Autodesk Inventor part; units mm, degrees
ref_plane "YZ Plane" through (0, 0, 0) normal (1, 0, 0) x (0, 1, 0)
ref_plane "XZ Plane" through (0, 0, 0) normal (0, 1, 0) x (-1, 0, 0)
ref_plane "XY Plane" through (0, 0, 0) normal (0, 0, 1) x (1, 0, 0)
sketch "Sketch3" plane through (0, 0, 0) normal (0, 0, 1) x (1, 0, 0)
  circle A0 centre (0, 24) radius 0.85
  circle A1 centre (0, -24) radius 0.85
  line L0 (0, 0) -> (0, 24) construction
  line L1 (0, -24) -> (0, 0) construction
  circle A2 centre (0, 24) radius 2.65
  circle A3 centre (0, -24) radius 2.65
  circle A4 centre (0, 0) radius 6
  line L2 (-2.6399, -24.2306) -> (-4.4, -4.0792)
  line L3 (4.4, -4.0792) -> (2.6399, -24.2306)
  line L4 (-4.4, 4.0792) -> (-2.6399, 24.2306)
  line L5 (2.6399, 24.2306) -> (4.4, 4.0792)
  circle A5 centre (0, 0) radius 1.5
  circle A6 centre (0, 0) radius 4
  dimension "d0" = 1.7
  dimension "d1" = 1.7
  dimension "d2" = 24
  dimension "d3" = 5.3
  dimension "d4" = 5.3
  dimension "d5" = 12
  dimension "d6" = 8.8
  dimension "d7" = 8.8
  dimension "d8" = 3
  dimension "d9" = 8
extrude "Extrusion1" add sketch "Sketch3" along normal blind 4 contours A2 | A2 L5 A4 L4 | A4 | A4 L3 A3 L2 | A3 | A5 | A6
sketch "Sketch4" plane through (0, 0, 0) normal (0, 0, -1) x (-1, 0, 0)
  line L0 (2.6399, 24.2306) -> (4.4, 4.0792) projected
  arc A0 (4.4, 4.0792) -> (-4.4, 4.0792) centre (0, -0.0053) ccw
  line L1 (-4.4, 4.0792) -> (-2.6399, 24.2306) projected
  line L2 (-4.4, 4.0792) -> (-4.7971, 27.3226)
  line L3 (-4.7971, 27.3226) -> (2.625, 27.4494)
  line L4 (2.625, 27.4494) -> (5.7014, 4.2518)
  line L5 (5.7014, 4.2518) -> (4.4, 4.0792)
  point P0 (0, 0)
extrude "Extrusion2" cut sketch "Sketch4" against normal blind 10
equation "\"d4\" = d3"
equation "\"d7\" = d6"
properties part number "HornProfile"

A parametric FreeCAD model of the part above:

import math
import FreeCAD as App
import Part
import Sketcher

doc = App.newDocument("Part")
body = doc.addObject("PartDesign::Body", "Body")

# Sketch on XY plane
sketch1 = doc.addObject("Sketcher::SketchObject", "Sketch")
body.addObject(sketch1)
sketch1.AttachmentSupport = (doc.XY_Plane, [""])
sketch1.MapMode = "FlatFace"
sketch1.addGeometry(Part.ArcOfCircle(Part.Circle(App.Vector(0, 24, 0), App.Vector(0, 0, 1), 2.6), math.radians(5), math.radians(175)), False)
sketch1.addGeometry(Part.LineSegment(App.Vector(-2.6, 24.2, 0), App.Vector(-4.4, 4.1, 0)), False)
sketch1.addGeometry(Part.ArcOfCircle(Part.Circle(App.Vector(0, 0, 0), App.Vector(0, 0, 1), 6), math.radians(137), math.radians(223)), False)
sketch1.addGeometry(Part.LineSegment(App.Vector(-4.4, -4.1, 0), App.Vector(-2.6, -24.2, 0)), False)
sketch1.addGeometry(Part.ArcOfCircle(Part.Circle(App.Vector(0, -24, 0), App.Vector(0, 0, 1), 2.6), math.radians(-175), math.radians(-5)), False)
sketch1.addGeometry(Part.LineSegment(App.Vector(2.6, -24.2, 0), App.Vector(4.4, -4.1, 0)), False)
sketch1.addGeometry(Part.ArcOfCircle(Part.Circle(App.Vector(0, 0, 0), App.Vector(0, 0, 1), 6), math.radians(-43), math.radians(43)), False)
sketch1.addGeometry(Part.LineSegment(App.Vector(4.4, 4.1, 0), App.Vector(2.6, 24.2, 0)), False)
sketch1.addGeometry(Part.Circle(App.Vector(0, 24, 0), App.Vector(0, 0, 1), 0.8), False)
sketch1.addGeometry(Part.Circle(App.Vector(0, -24, 0), App.Vector(0, 0, 1), 0.8), False)
sketch1.addConstraint(Sketcher.Constraint("Tangent", 0, 2, 1, 1))
sketch1.addConstraint(Sketcher.Constraint("Coincident", 1, 2, 2, 1))
sketch1.addConstraint(Sketcher.Constraint("Coincident", 2, 2, 3, 1))
sketch1.addConstraint(Sketcher.Constraint("Tangent", 3, 2, 4, 1))
sketch1.addConstraint(Sketcher.Constraint("Tangent", 4, 2, 5, 1))
sketch1.addConstraint(Sketcher.Constraint("Coincident", 5, 2, 6, 1))
sketch1.addConstraint(Sketcher.Constraint("Coincident", 6, 2, 7, 1))
sketch1.addConstraint(Sketcher.Constraint("Tangent", 7, 2, 0, 1))
sketch1.addConstraint(Sketcher.Constraint("Coincident", 2, 3, -1, 1))
sketch1.addConstraint(Sketcher.Constraint("Coincident", 6, 3, -1, 1))
sketch1.addConstraint(Sketcher.Constraint("Coincident", 8, 3, 0, 3))
sketch1.addConstraint(Sketcher.Constraint("Coincident", 9, 3, 4, 3))
sketch1.addConstraint(Sketcher.Constraint("Equal", 0, 4))
sketch1.addConstraint(Sketcher.Constraint("Equal", 2, 6))
sketch1.addConstraint(Sketcher.Constraint("Equal", 8, 9))
sketch1.addConstraint(Sketcher.Constraint("Symmetric", 0, 3, 4, 3, -1, 1))
sketch1.addConstraint(Sketcher.Constraint("Symmetric", 3, 2, 4, 2, -2))
sketch1.addConstraint(Sketcher.Constraint("Parallel", 1, 5))
sketch1.addConstraint(Sketcher.Constraint("Parallel", 3, 7))
sketch1.addConstraint(Sketcher.Constraint("Radius", 2, 6.0))
sketch1.addConstraint(Sketcher.Constraint("Diameter", 8, 1.7))
sketch1.addConstraint(Sketcher.Constraint("Radius", 0, 2.65))
sketch1.addConstraint(Sketcher.Constraint("DistanceY", -1, 1, 0, 3, 24.0))
sketch1.addConstraint(Sketcher.Constraint("DistanceX", 2, 2, 5, 2, 8.8))
pad1 = doc.addObject("PartDesign::Pad", "Pad")
body.addObject(pad1)
pad1.Profile = sketch1
pad1.Length = 4

# Sketch on XY plane
sketch2 = doc.addObject("Sketcher::SketchObject", "Sketch001")
body.addObject(sketch2)
sketch2.AttachmentSupport = (doc.XY_Plane, [""])
sketch2.MapMode = "FlatFace"
sketch2.addGeometry(Part.ArcOfCircle(Part.Circle(App.Vector(0, 0, 0), App.Vector(0, 0, 1), 6), math.radians(43), math.radians(137)), False)
sketch2.addGeometry(Part.LineSegment(App.Vector(-4.4, 4.1, 0), App.Vector(-5.7, 4.3, 0)), False)
sketch2.addGeometry(Part.LineSegment(App.Vector(-5.7, 4.3, 0), App.Vector(-2.6, 27.4, 0)), False)
sketch2.addGeometry(Part.LineSegment(App.Vector(-2.6, 27.4, 0), App.Vector(4.8, 27.3, 0)), False)
sketch2.addGeometry(Part.LineSegment(App.Vector(4.8, 27.3, 0), App.Vector(4.4, 4.1, 0)), False)
sketch2.addConstraint(Sketcher.Constraint("Coincident", 0, 2, 1, 1))
sketch2.addConstraint(Sketcher.Constraint("Coincident", 1, 2, 2, 1))
sketch2.addConstraint(Sketcher.Constraint("Coincident", 2, 2, 3, 1))
sketch2.addConstraint(Sketcher.Constraint("Coincident", 3, 2, 4, 1))
sketch2.addConstraint(Sketcher.Constraint("Coincident", 4, 2, 0, 1))
sketch2.addConstraint(Sketcher.Constraint("Symmetric", 0, 2, 4, 2, -2))
sketch2.addConstraint(Sketcher.Constraint("Perpendicular", 1, 2))
sketch2.addConstraint(Sketcher.Constraint("Perpendicular", 3, 4))
sketch2.addConstraint(Sketcher.Constraint("DistanceX", 0, 2, -1, 1, 4.4))
sketch2.addConstraint(Sketcher.Constraint("Radius", 0, 6.0036))
sketch2.addConstraint(Sketcher.Constraint("DistanceX", 2, 2, -1, 1, 2.625))
sketch2.addConstraint(Sketcher.Constraint("DistanceX", -1, 1, 3, 2, 4.797))
sketch2.addConstraint(Sketcher.Constraint("DistanceY", 0, 3, 1, 2, 4.257))
sketch2.addConstraint(Sketcher.Constraint("DistanceY", 0, 3, 3, 2, 27.328))
sketch2.addConstraint(Sketcher.Constraint("DistanceY", 0, 3, -1, 1, 0.0053))
pocket1 = doc.addObject("PartDesign::Pocket", "Pocket")
body.addObject(pocket1)
pocket1.Profile = sketch2
pocket1.Length = 10
pocket1.Reversed = True

doc.recompute()
